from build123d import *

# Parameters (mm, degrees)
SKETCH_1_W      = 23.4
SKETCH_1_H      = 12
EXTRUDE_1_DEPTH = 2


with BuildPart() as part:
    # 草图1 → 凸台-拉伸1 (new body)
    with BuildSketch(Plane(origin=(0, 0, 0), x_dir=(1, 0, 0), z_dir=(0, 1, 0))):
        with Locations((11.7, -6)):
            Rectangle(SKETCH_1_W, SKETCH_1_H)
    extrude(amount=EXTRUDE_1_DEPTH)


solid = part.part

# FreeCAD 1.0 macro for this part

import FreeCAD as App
import Part
import Sketcher

V = App.Vector
Q = App.Units.Quantity

doc = App.newDocument("Part")
body = doc.addObject("PartDesign::Body", "Body")

sketch1 = body.newObject("Sketcher::SketchObject", "Sketch")
sketch1.AttachmentSupport = (doc.getObject("XZ_Plane"), [""])
sketch1.MapMode = "FlatFace"
sketch1.addGeometry(Part.LineSegment(V(0, 0, 0), V(0, 12, 0)), False)
sketch1.addGeometry(Part.LineSegment(V(0, 12, 0), V(23, 12, 0)), False)
sketch1.addGeometry(Part.LineSegment(V(23, 12, 0), V(23, 0, 0)), False)
sketch1.addGeometry(Part.LineSegment(V(23, 0, 0), V(0, 0, 0)), False)
sketch1.addConstraint(Sketcher.Constraint("Coincident", 0, 2, 1, 1))
sketch1.addConstraint(Sketcher.Constraint("Coincident", 1, 2, 2, 1))
sketch1.addConstraint(Sketcher.Constraint("Coincident", 2, 2, 3, 1))
sketch1.addConstraint(Sketcher.Constraint("Coincident", 3, 2, 0, 1))
sketch1.addConstraint(Sketcher.Constraint("Vertical", 0))
sketch1.addConstraint(Sketcher.Constraint("Horizontal", 1))
sketch1.addConstraint(Sketcher.Constraint("Vertical", 2))
sketch1.addConstraint(Sketcher.Constraint("Horizontal", 3))
sketch1.addConstraint(Sketcher.Constraint("Coincident", 3, 2, -1, 1))
sketch1.addConstraint(Sketcher.Constraint("DistanceY", 0, 1, 0, 2, Q("12 mm")))
sketch1.addConstraint(Sketcher.Constraint("DistanceX", 1, 1, 1, 2, Q("23.4 mm")))
pad1 = body.newObject("PartDesign::Pad", "Pad")
pad1.Profile = sketch1
pad1.Length = 2
pad1.Reversed = True

doc.recompute()
